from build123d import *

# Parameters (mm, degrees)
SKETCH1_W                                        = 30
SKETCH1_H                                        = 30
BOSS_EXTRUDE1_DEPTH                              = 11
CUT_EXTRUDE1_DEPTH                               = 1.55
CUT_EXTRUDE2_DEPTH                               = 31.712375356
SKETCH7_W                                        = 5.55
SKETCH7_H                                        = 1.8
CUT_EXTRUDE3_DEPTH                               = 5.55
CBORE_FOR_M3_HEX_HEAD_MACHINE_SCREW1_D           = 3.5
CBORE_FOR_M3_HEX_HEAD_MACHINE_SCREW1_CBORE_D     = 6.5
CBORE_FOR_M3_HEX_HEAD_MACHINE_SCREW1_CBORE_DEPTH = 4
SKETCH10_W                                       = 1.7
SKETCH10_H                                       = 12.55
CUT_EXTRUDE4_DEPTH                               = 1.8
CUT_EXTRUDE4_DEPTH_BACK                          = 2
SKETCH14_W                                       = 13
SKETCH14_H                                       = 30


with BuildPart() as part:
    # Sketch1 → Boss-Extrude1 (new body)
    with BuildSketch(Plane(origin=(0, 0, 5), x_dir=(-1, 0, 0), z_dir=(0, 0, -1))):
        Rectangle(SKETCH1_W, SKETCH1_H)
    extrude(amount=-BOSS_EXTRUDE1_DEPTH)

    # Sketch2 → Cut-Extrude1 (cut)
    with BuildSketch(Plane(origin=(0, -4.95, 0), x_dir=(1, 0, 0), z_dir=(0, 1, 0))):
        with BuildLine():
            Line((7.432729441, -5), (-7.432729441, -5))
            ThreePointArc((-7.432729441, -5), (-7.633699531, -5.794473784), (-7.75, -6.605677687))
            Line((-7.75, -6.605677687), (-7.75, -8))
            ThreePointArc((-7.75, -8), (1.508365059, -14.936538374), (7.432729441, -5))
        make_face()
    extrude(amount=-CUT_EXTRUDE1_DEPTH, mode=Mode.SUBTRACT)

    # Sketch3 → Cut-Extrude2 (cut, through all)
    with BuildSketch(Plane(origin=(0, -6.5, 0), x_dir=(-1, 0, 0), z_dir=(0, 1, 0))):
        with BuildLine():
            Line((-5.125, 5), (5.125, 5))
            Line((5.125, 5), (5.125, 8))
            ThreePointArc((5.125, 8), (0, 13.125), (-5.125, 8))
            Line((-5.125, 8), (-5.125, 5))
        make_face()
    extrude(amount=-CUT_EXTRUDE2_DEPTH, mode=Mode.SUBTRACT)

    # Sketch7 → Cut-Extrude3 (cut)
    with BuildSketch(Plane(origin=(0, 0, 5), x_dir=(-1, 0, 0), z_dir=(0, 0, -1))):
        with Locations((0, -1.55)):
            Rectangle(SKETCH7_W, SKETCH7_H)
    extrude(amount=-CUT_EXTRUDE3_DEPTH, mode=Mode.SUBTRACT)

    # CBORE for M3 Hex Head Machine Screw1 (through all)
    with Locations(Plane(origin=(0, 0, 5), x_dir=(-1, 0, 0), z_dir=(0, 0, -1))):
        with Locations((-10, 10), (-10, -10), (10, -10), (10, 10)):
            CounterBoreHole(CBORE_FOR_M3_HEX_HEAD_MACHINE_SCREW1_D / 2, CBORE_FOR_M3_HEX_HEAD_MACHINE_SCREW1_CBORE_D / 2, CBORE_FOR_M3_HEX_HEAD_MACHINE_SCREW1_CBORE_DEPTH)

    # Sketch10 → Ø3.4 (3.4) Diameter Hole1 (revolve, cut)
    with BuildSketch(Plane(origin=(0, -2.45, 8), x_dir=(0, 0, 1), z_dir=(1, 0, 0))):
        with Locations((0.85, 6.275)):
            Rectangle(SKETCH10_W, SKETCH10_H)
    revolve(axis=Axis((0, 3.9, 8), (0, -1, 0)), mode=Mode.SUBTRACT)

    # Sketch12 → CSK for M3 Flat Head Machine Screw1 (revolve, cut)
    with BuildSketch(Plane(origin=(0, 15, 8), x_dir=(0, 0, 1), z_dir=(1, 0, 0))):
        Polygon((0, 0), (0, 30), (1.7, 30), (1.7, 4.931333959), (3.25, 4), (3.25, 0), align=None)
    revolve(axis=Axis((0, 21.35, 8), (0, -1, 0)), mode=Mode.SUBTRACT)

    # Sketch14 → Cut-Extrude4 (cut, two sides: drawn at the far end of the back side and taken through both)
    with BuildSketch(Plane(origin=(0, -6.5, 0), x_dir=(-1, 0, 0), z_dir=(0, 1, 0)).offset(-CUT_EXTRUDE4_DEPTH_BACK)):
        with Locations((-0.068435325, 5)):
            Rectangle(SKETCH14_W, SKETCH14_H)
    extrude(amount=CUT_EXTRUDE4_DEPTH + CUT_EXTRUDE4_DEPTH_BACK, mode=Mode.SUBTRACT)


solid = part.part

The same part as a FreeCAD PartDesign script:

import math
import FreeCAD as App
import Part
import Sketcher
from FreeCAD import Vector
Q = App.Units.Quantity


def add_polygon(sketch, points):
    """Adds a closed chain of lines whose ends are joined by coincident constraints."""
    first, n = sketch.GeometryCount, len(points)
    for a, b in zip(points, points[1:] + points[:1]):
        sketch.addGeometry(Part.LineSegment(App.Vector(*a, 0), App.Vector(*b, 0)), False)
    for i in range(n):
        sketch.addConstraint(Sketcher.Constraint("Coincident", first + i, 2, first + (i + 1) % n, 1))

doc = App.newDocument("Part")
params = doc.addObject("Spreadsheet::Sheet", "Params")
for row, (alias, value) in enumerate([
    ("sketch1_width", "30 mm"),
    ("pad1_length", "11 mm"),
    ("pocket1_length", "1.55 mm"),
    ("sketch3_height", "3 mm"),
    ("sketch4_height", "1.8 mm"),
    ("sketch4_width", "5.55 mm"),
    ("pocket3_length", "5.55 mm"),
    ("sketch5_diameter", "3.5 mm"),
    ("hole_diameter", "3.5 mm"),
    ("hole_cbore_diameter", "6.5 mm"),
    ("hole_cbore_depth", "4 mm"),
    ("sketch6_height", "1.7 mm"),
    ("sketch6_width", "12.55 mm"),
    ("groove_angle", "360 deg"),
    ("sketch7_width", "30 mm"),
    ("sketch7_width2", "4 mm"),
    ("sketch7_height", "1.7 mm"),
    ("sketch7_height2", "3.25 mm"),
    ("groove2_angle", "360 deg"),
    ("sketch8_width", "13 mm"),
    ("sketch8_height", "30 mm"),
    ("pocket4_length", "1.8 mm"),
    ("pocket4_length2", "2 mm"),
], start=1):
    params.set(f"A{row}", alias)
    params.set(f"B{row}", "=" + value)
    params.setAlias(f"B{row}", alias)

body = doc.addObject("PartDesign::Body", "Body")

# Sketch on XY plane
sketch1 = body.newObject("Sketcher::SketchObject", "Sketch")
sketch1.AttachmentSupport = (doc.getObject("XY_Plane"), [""])
sketch1.MapMode = "FlatFace"
sketch1.AttachmentOffset = App.Placement(Vector(0, 0, 5), App.Rotation())
add_polygon(sketch1, [(15, 15), (15, -15), (-15, -15), (-15, 15)])  # lines 0-3
sketch1.addConstraint([
    Sketcher.Constraint("Vertical", 0),
    Sketcher.Constraint("Horizontal", 1),
    Sketcher.Constraint("Vertical", 2),
    Sketcher.Constraint("Horizontal", 3),
    Sketcher.Constraint("Symmetric", 0, 2, 2, 2, -1, 1),
    Sketcher.Constraint("Equal", 3, 0),
    Sketcher.Constraint("DistanceX", 1, 2, 1, 1, 30.0),
])
sketch1.setExpression("Constraints[10]", "Params.sketch1_width")
pad1 = body.newObject("PartDesign::Pad", "Pad")
pad1.Profile = sketch1
pad1.setExpression("Length", "Params.pad1_length")

# Sketch on XZ plane
sketch2 = body.newObject("Sketcher::SketchObject", "Sketch001")
sketch2.AttachmentSupport = (doc.getObject("XZ_Plane"), [""])
sketch2.MapMode = "FlatFace"
sketch2.AttachmentOffset = App.Placement(Vector(0, 0, 4.95), App.Rotation())
sketch2.addGeometry([
    Part.LineSegment(Vector(7.4, 5, 0), Vector(-7.4, 5, 0)),
    Part.ArcOfCircle(Part.Circle(Vector(0, 7.3, 0), Vector(0, 0, 1), 7.8), math.radians(-174.86), math.radians(-162.79)),
    Part.LineSegment(Vector(-7.8, 6.6, 0), Vector(-7.8, 8, 0)),
    Part.ArcOfCircle(Part.Circle(Vector(0, 7.3, 0), Vector(0, 0, 1), 7.8), math.radians(-17), math.radians(175)),
], False)
sketch2.addConstraint([
    Sketcher.Constraint("Coincident", 0, 2, 1, 2),
    Sketcher.Constraint("Coincident", 1, 1, 2, 1),
    Sketcher.Constraint("Coincident", 2, 2, 3, 2),
    Sketcher.Constraint("Coincident", 3, 1, 0, 1),
    Sketcher.Constraint("Horizontal", 0),
    Sketcher.Constraint("Vertical", 2),
    Sketcher.Constraint("Coincident", 3, 3, 1, 3),
    Sketcher.Constraint("Equal", 1, 3),
    Sketcher.Constraint("PointOnObject", 1, 3, -2),
    Sketcher.Constraint("DistanceY", -1, 1, 0, 2, 5.0),
    Sketcher.Constraint("DistanceY", -1, 1, 2, 2, 8.0),
    Sketcher.Constraint("DistanceX", 1, 1, -1, 1, 7.75),
    Sketcher.Constraint("Radius", 1, 7.781294),
])
pocket1 = body.newObject("PartDesign::Pocket", "Pocket")
pocket1.Profile = sketch2
pocket1.setExpression("Length", "Params.pocket1_length")
pocket1.Reversed = True

# Sketch on XZ plane
sketch3 = body.newObject("Sketcher::SketchObject", "Sketch002")
sketch3.AttachmentSupport = (doc.getObject("XZ_Plane"), [""])
sketch3.MapMode = "FlatFace"
sketch3.AttachmentOffset = App.Placement(Vector(0, 0, 6.5), App.Rotation())
sketch3.addGeometry([
    Part.LineSegment(Vector(5.1, 5, 0), Vector(-5.1, 5, 0)),
    Part.LineSegment(Vector(-5.1, 5, 0), Vector(-5.1, 8, 0)),
    Part.ArcOfCircle(Part.Circle(Vector(0, 8, 0), Vector(0, 0, 1), 5.1), math.radians(0), math.radians(180)),
    Part.LineSegment(Vector(5.1, 8, 0), Vector(5.1, 5, 0)),
], False)
sketch3.addConstraint([
    Sketcher.Constraint("Coincident", 0, 2, 1, 1),
    Sketcher.Constraint("Tangent", 1, 2, 2, 2),
    Sketcher.Constraint("Tangent", 2, 1, 3, 1),
    Sketcher.Constraint("Coincident", 3, 2, 0, 1),
    Sketcher.Constraint("Horizontal", 0),
    Sketcher.Constraint("Vertical", 1),
    Sketcher.Constraint("Vertical", 3),
    Sketcher.Constraint("PointOnObject", 2, 3, -2),
    Sketcher.Constraint("DistanceY", 1, 1, 1, 2, 3.0),
    Sketcher.Constraint("DistanceY", -1, 1, 2, 3, 8.0),
    Sketcher.Constraint("Radius", 2, 5.125),
])
sketch3.setExpression("Constraints[8]", "Params.sketch3_height")
pocket2 = body.newObject("PartDesign::Pocket", "Pocket001")
pocket2.Profile = sketch3
pocket2.Type = "ThroughAll"
pocket2.Reversed = True

# Sketch on XY plane
sketch4 = body.newObject("Sketcher::SketchObject", "Sketch003")
sketch4.AttachmentSupport = (doc.getObject("XY_Plane"), [""])
sketch4.MapMode = "FlatFace"
sketch4.AttachmentOffset = App.Placement(Vector(0, 0, 5), App.Rotation())
add_polygon(sketch4, [(2.8, -0.7), (2.8, -2.5), (-2.8, -2.5), (-2.8, -0.7)])  # lines 0-3
sketch4.addConstraint([
    Sketcher.Constraint("Vertical", 0),
    Sketcher.Constraint("Horizontal", 1),
    Sketcher.Constraint("Vertical", 2),
    Sketcher.Constraint("Horizontal", 3),
    Sketcher.Constraint("DistanceY", 0, 2, 0, 1, 1.8),
    Sketcher.Constraint("DistanceX", 1, 2, 1, 1, 5.55),
    Sketcher.Constraint("DistanceY", 0, 2, -1, 1, 2.45),
    Sketcher.Constraint("DistanceX", -1, 1, 0, 2, 2.775),
])
sketch4.setExpression("Constraints[8]", "Params.sketch4_height")
sketch4.setExpression("Constraints[9]", "Params.sketch4_width")
pocket3 = body.newObject("PartDesign::Pocket", "Pocket002")
pocket3.Profile = sketch4
pocket3.setExpression("Length", "Params.pocket3_length")
pocket3.Reversed = True

# Sketch on XY plane
sketch5 = body.newObject("Sketcher::SketchObject", "Sketch004")
sketch5.AttachmentSupport = (doc.getObject("XY_Plane"), [""])
sketch5.MapMode = "FlatFace"
sketch5.AttachmentOffset = App.Placement(Vector(0, 0, 5), App.Rotation())
sketch5.addGeometry([
    Part.Circle(Vector(10, 10, 0), Vector(0, 0, 1), 1.8),
    Part.Circle(Vector(10, -10, 0), Vector(0, 0, 1), 1.8),
    Part.Circle(Vector(-10, -10, 0), Vector(0, 0, 1), 1.8),
    Part.Circle(Vector(-10, 10, 0), Vector(0, 0, 1), 1.8),
], False)
sketch5.addConstraint([
    Sketcher.Constraint("Equal", 0, 1),
    Sketcher.Constraint("Equal", 1, 2),
    Sketcher.Constraint("Equal", 2, 3),
    Sketcher.Constraint("Symmetric", 0, 3, 2, 3, -1, 1),
    Sketcher.Constraint("Symmetric", 1, 3, 3, 3, -1, 1),
    Sketcher.Constraint("Symmetric", 1, 3, 2, 3, -2),
    Sketcher.Constraint("Diameter", 0, 3.5),
    Sketcher.Constraint("DistanceX", -1, 1, 0, 3, 10.0),
    Sketcher.Constraint("DistanceY", -1, 1, 0, 3, 10.0),
])
sketch5.setExpression("Constraints[6]", "Params.sketch5_diameter")
doc.recompute()
hole = body.newObject("PartDesign::Hole", "Hole")
hole.Profile = sketch5
hole.ThreadType = "None"
hole.setExpression("Diameter", "Params.hole_diameter")
hole.DepthType = "ThroughAll"
hole.HoleCutType = "Counterbore"
hole.setExpression("HoleCutDiameter", "Params.hole_cbore_diameter")
hole.setExpression("HoleCutDepth", "Params.hole_cbore_depth")
hole.Reversed = True

# Sketch on YZ plane
sketch6 = body.newObject("Sketcher::SketchObject", "Sketch005")
sketch6.AttachmentSupport = (doc.getObject("YZ_Plane"), [""])
sketch6.MapMode = "FlatFace"
add_polygon(sketch6, [(-15, 8), (-2.5, 8), (-2.5, 9.7), (-15, 9.7)])  # lines 0-3
sketch6.addGeometry(Part.LineSegment(Vector(-2.5, 8, 0), Vector(-15, 8, 0)), True)  # axis
sketch6.addConstraint([
    Sketcher.Constraint("Horizontal", 0),
    Sketcher.Constraint("Vertical", 1),
    Sketcher.Constraint("Horizontal", 2),
    Sketcher.Constraint("Vertical", 3),
    Sketcher.Constraint("Horizontal", 4),
    Sketcher.Constraint("Coincident", 4, 1, 0, 2),
    Sketcher.Constraint("Vertical", 2, 2, 4, 2),
    Sketcher.Constraint("DistanceY", 1, 1, 1, 2, 1.7),
    Sketcher.Constraint("DistanceY", -1, 1, 0, 2, 8.0),
    Sketcher.Constraint("DistanceX", 2, 2, -1, 1, 15.0),
    Sketcher.Constraint("DistanceX", 0, 1, 0, 2, 12.55),
])
sketch6.setExpression("Constraints[11]", "Params.sketch6_height")
sketch6.setExpression("Constraints[14]", "Params.sketch6_width")
groove = body.newObject("PartDesign::Groove", "Groove")
groove.Profile = sketch6
groove.ReferenceAxis = (sketch6, ["Axis0"])
groove.setExpression("Angle", "Params.groove_angle")

# Sketch on YZ plane
sketch7 = body.newObject("Sketcher::SketchObject", "Sketch006")
sketch7.AttachmentSupport = (doc.getObject("YZ_Plane"), [""])
sketch7.MapMode = "FlatFace"
add_polygon(sketch7, [(-15, 8), (15, 8), (15, 11.2), (11, 11.2), (10.1, 9.7), (-15, 9.7)])  # lines 0-5
sketch7.addGeometry(Part.LineSegment(Vector(15, 8, 0), Vector(-15, 8, 0)), True)  # axis
sketch7.addConstraint([
    Sketcher.Constraint("Horizontal", 0),
    Sketcher.Constraint("Vertical", 1),
    Sketcher.Constraint("Horizontal", 2),
    Sketcher.Constraint("Horizontal", 4),
    Sketcher.Constraint("Vertical", 5),
    Sketcher.Constraint("Horizontal", 6),
    Sketcher.Constraint("Coincident", 6, 1, 0, 2),
    Sketcher.Constraint("Vertical", 4, 2, 6, 2),
    Sketcher.Constraint("DistanceX", 0, 1, 0, 2, 30.0),
    Sketcher.Constraint("DistanceX", 2, 2, 2, 1, 4.0),
    Sketcher.Constraint("Angle", 3, Q("-121 deg")),
    Sketcher.Constraint("DistanceY", 5, 2, 5, 1, 1.7),
    Sketcher.Constraint("DistanceX", -1, 1, 0, 2, 15.0),
    Sketcher.Constraint("DistanceY", -1, 1, 0, 2, 8.0),
    Sketcher.Constraint("DistanceY", 1, 1, 1, 2, 3.25),
])
sketch7.setExpression("Constraints[14]", "Params.sketch7_width")
sketch7.setExpression("Constraints[15]", "Params.sketch7_width2")
sketch7.setExpression("Constraints[17]", "Params.sketch7_height")
sketch7.setExpression("Constraints[20]", "Params.sketch7_height2")
groove2 = body.newObject("PartDesign::Groove", "Groove001")
groove2.Profile = sketch7
groove2.ReferenceAxis = (sketch7, ["Axis0"])
groove2.setExpression("Angle", "Params.groove2_angle")

# Sketch on XZ plane
sketch8 = body.newObject("Sketcher::SketchObject", "Sketch007")
sketch8.AttachmentSupport = (doc.getObject("XZ_Plane"), [""])
sketch8.MapMode = "FlatFace"
sketch8.AttachmentOffset = App.Placement(Vector(0, 0, 6.5), App.Rotation())
add_polygon(sketch8, [(7, 20), (7, -10), (-6, -10), (-6, 20)])  # lines 0-3
sketch8.addConstraint([
    Sketcher.Constraint("Vertical", 0),
    Sketcher.Constraint("Horizontal", 1),
    Sketcher.Constraint("Vertical", 2),
    Sketcher.Constraint("Horizontal", 3),
    Sketcher.Constraint("DistanceX", 1, 2, 1, 1, 13.0),
    Sketcher.Constraint("DistanceY", 0, 2, 0, 1, 30.0),
    Sketcher.Constraint("DistanceY", 0, 2, -1, 1, 10.0),
    Sketcher.Constraint("DistanceX", -1, 1, 0, 2, 6.568435),
])
sketch8.setExpression("Constraints[8]", "Params.sketch8_width")
sketch8.setExpression("Constraints[9]", "Params.sketch8_height")
pocket4 = body.newObject("PartDesign::Pocket", "Pocket003")
pocket4.Profile = sketch8
pocket4.Type = "TwoLengths"
pocket4.setExpression("Length", "Params.pocket4_length")
pocket4.setExpression("Length2", "Params.pocket4_length2")

doc.recompute()
